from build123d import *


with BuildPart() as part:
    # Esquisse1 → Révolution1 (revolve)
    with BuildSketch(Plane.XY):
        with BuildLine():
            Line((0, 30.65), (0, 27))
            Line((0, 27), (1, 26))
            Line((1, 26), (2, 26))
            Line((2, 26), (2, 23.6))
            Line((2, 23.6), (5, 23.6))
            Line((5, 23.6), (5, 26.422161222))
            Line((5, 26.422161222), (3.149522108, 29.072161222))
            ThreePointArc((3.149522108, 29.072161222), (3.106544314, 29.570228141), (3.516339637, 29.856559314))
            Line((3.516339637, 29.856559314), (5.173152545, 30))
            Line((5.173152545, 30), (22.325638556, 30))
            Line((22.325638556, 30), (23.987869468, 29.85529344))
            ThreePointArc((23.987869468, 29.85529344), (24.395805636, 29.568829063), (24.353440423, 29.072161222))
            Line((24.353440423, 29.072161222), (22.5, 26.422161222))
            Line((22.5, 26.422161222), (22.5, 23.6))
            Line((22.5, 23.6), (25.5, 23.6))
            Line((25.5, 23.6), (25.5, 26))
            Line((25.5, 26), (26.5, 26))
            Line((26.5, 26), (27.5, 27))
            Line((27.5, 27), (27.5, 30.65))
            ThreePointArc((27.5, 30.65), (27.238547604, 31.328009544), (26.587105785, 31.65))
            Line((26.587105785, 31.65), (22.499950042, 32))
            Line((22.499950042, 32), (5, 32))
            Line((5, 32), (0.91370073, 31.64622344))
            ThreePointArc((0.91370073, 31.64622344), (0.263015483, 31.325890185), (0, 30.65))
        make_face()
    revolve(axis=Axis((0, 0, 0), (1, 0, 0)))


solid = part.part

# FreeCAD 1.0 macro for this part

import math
import FreeCAD as App
import Part
import Sketcher
from FreeCAD import Vector
Q = App.Units.Quantity

doc = App.newDocument("Part")
body = doc.addObject("PartDesign::Body", "Body")

# Sketch on XY plane
sketch1 = body.newObject("Sketcher::SketchObject", "Sketch")
sketch1.AttachmentSupport = (doc.getObject("XY_Plane"), [""])
sketch1.MapMode = "FlatFace"
sketch1.addGeometry([
    Part.LineSegment(Vector(0, 30.65, 0), Vector(0, 27, 0)),  # 0
    Part.LineSegment(Vector(0, 27, 0), Vector(1, 26, 0)),  # 1
    Part.LineSegment(Vector(1, 26, 0), Vector(2, 26, 0)),  # 2
    Part.LineSegment(Vector(2, 26, 0), Vector(2, 23.6, 0)),  # 3
    Part.LineSegment(Vector(2, 23.6, 0), Vector(5, 23.6, 0)),  # 4
    Part.LineSegment(Vector(5, 23.6, 0), Vector(5, 26.42, 0)),  # 5
    Part.LineSegment(Vector(5, 26.42, 0), Vector(3.15, 29.07, 0)),  # 6
    Part.ArcOfCircle(Part.Circle(Vector(3.56, 29.36, 0), Vector(0, 0, 1), 0.5), math.radians(95), math.radians(215)),  # 7
    Part.LineSegment(Vector(3.52, 29.86, 0), Vector(5.17, 30, 0)),  # 8
    Part.LineSegment(Vector(5.17, 30, 0), Vector(22.33, 30, 0)),  # 9
    Part.LineSegment(Vector(22.33, 30, 0), Vector(23.99, 29.86, 0)),  # 10
    Part.ArcOfCircle(Part.Circle(Vector(23.94, 29.36, 0), Vector(0, 0, 1), 0.5), math.radians(-35), math.radians(85)),  # 11
    Part.LineSegment(Vector(24.35, 29.07, 0), Vector(22.5, 26.42, 0)),  # 12
    Part.LineSegment(Vector(22.5, 26.42, 0), Vector(22.5, 23.6, 0)),  # 13
    Part.LineSegment(Vector(22.5, 23.6, 0), Vector(25.5, 23.6, 0)),  # 14
    Part.LineSegment(Vector(25.5, 23.6, 0), Vector(25.5, 26, 0)),  # 15
    Part.LineSegment(Vector(25.5, 26, 0), Vector(26.5, 26, 0)),  # 16
    Part.LineSegment(Vector(26.5, 26, 0), Vector(27.5, 27, 0)),  # 17
    Part.LineSegment(Vector(27.5, 27, 0), Vector(27.5, 30.65, 0)),  # 18
    Part.ArcOfCircle(Part.Circle(Vector(26.5, 30.65, 0), Vector(0, 0, 1), 1), math.radians(0), math.radians(85)),  # 19
    Part.LineSegment(Vector(26.59, 31.65, 0), Vector(22.5, 32, 0)),  # 20
    Part.LineSegment(Vector(22.5, 32, 0), Vector(5, 32, 0)),  # 21
    Part.LineSegment(Vector(5, 32, 0), Vector(0.91, 31.65, 0)),  # 22
    Part.ArcOfCircle(Part.Circle(Vector(1, 30.65, 0), Vector(0, 0, 1), 1), math.radians(95), math.radians(180)),  # 23
], False)
sketch1.addConstraint([
    Sketcher.Constraint("Coincident", 0, 2, 1, 1),
    Sketcher.Constraint("Coincident", 1, 2, 2, 1),
    Sketcher.Constraint("Coincident", 2, 2, 3, 1),
    Sketcher.Constraint("Coincident", 3, 2, 4, 1),
    Sketcher.Constraint("Coincident", 4, 2, 5, 1),
    Sketcher.Constraint("Coincident", 5, 2, 6, 1),
    Sketcher.Constraint("Tangent", 6, 2, 7, 2),
    Sketcher.Constraint("Tangent", 7, 1, 8, 1),
    Sketcher.Constraint("Coincident", 8, 2, 9, 1),
    Sketcher.Constraint("Coincident", 9, 2, 10, 1),
    Sketcher.Constraint("Coincident", 10, 2, 11, 2),
    Sketcher.Constraint("Coincident", 11, 1, 12, 1),
    Sketcher.Constraint("Coincident", 12, 2, 13, 1),
    Sketcher.Constraint("Coincident", 13, 2, 14, 1),
    Sketcher.Constraint("Coincident", 14, 2, 15, 1),
    Sketcher.Constraint("Coincident", 15, 2, 16, 1),
    Sketcher.Constraint("Coincident", 16, 2, 17, 1),
    Sketcher.Constraint("Coincident", 17, 2, 18, 1),
    Sketcher.Constraint("Coincident", 18, 2, 19, 1),
    Sketcher.Constraint("Coincident", 19, 2, 20, 1),
    Sketcher.Constraint("Coincident", 20, 2, 21, 1),
    Sketcher.Constraint("Coincident", 21, 2, 22, 1),
    Sketcher.Constraint("Tangent", 22, 2, 23, 1),
    Sketcher.Constraint("Tangent", 23, 2, 0, 1),
    Sketcher.Constraint("Vertical", 0),
    Sketcher.Constraint("Horizontal", 2),
    Sketcher.Constraint("Vertical", 3),
    Sketcher.Constraint("Horizontal", 4),
    Sketcher.Constraint("Vertical", 5),
    Sketcher.Constraint("Horizontal", 9),
    Sketcher.Constraint("Vertical", 13),
    Sketcher.Constraint("Horizontal", 14),
    Sketcher.Constraint("Vertical", 15),
    Sketcher.Constraint("Horizontal", 16),
    Sketcher.Constraint("Vertical", 18),
    Sketcher.Constraint("Horizontal", 21),
    Sketcher.Constraint("Equal", 7, 11),
    Sketcher.Constraint("PointOnObject", 0, 2, -2),
    Sketcher.Constraint("Perpendicular", 1, 17),
    Sketcher.Constraint("Parallel", 8, 22),
    Sketcher.Constraint("Horizontal", 6, 2, 11, 1),
    Sketcher.Constraint("Horizontal", 5, 2, 12, 2),
    Sketcher.Constraint("Horizontal", 4, 2, 13, 2),
    Sketcher.Constraint("Horizontal", 2, 2, 15, 2),
    Sketcher.Constraint("Horizontal", 0, 2, 17, 2),
    Sketcher.Constraint("Horizontal", 23, 3, 18, 2),
    Sketcher.Constraint("Vertical", 5, 2, 21, 2),
    Sketcher.Constraint("Equal", 4, 14),
    Sketcher.Constraint("Equal", 2, 16),
    Sketcher.Constraint("Equal", 1, 17),
    Sketcher.Constraint("Radius", 19, Q("1 mm")),
    Sketcher.Constraint("Radius", 7, Q("0.5 mm")),
    Sketcher.Constraint("DistanceX", 2, 1, 2, 2, Q("1 mm")),
    Sketcher.Constraint("DistanceX", 4, 1, 4, 2, Q("3 mm")),
    Sketcher.Constraint("DistanceY", 3, 2, 3, 1, Q("2.4 mm")),
    Sketcher.Constraint("DistanceY", -1, 1, 0, 2, Q("27 mm")),
    Sketcher.Constraint("DistanceX", -1, 1, 1, 2, Q("1 mm")),
    Sketcher.Constraint("DistanceY", -1, 1, 8, 2, Q("30 mm")),
    Sketcher.Constraint("DistanceY", -1, 1, 20, 2, Q("32 mm")),
    Sketcher.Constraint("DistanceY", 18, 2, 19, 2, Q("1 mm")),
    Sketcher.Constraint("DistanceY", 0, 2, 0, 1, Q("3.65 mm")),
    Sketcher.Constraint("DistanceX", -1, 1, 12, 2, Q("22.5 mm")),
    Sketcher.Constraint("Radius", 23, Q("0.99995 mm")),
    Sketcher.Constraint("DistanceY", 5, 2, 6, 2, Q("2.65 mm")),
    Sketcher.Constraint("DistanceX", 21, 2, 21, 1, Q("17.49995 mm")),
    Sketcher.Constraint("DistanceY", 5, 1, 5, 2, Q("2.822161 mm")),
    Sketcher.Constraint("DistanceY", -1, 1, 19, 3, Q("30.6538 mm")),
    Sketcher.Constraint("DistanceY", 6, 2, 7, 1, Q("0.784398 mm")),
    Sketcher.Constraint("DistanceX", 9, 2, 11, 3, Q("1.6171 mm")),
    Sketcher.Constraint("DistanceX", 9, 2, 11, 1, Q("2.027802 mm")),
    Sketcher.Constraint("DistanceX", 9, 1, 9, 2, Q("17.152486 mm")),
    Sketcher.Constraint("DistanceX", -1, 1, 10, 2, Q("23.987869 mm")),
])
revolution = body.newObject("PartDesign::Revolution", "Revolution")
revolution.Profile = sketch1
revolution.ReferenceAxis = (sketch1, ["H_Axis"])
revolution.Angle = 360

doc.recompute()
